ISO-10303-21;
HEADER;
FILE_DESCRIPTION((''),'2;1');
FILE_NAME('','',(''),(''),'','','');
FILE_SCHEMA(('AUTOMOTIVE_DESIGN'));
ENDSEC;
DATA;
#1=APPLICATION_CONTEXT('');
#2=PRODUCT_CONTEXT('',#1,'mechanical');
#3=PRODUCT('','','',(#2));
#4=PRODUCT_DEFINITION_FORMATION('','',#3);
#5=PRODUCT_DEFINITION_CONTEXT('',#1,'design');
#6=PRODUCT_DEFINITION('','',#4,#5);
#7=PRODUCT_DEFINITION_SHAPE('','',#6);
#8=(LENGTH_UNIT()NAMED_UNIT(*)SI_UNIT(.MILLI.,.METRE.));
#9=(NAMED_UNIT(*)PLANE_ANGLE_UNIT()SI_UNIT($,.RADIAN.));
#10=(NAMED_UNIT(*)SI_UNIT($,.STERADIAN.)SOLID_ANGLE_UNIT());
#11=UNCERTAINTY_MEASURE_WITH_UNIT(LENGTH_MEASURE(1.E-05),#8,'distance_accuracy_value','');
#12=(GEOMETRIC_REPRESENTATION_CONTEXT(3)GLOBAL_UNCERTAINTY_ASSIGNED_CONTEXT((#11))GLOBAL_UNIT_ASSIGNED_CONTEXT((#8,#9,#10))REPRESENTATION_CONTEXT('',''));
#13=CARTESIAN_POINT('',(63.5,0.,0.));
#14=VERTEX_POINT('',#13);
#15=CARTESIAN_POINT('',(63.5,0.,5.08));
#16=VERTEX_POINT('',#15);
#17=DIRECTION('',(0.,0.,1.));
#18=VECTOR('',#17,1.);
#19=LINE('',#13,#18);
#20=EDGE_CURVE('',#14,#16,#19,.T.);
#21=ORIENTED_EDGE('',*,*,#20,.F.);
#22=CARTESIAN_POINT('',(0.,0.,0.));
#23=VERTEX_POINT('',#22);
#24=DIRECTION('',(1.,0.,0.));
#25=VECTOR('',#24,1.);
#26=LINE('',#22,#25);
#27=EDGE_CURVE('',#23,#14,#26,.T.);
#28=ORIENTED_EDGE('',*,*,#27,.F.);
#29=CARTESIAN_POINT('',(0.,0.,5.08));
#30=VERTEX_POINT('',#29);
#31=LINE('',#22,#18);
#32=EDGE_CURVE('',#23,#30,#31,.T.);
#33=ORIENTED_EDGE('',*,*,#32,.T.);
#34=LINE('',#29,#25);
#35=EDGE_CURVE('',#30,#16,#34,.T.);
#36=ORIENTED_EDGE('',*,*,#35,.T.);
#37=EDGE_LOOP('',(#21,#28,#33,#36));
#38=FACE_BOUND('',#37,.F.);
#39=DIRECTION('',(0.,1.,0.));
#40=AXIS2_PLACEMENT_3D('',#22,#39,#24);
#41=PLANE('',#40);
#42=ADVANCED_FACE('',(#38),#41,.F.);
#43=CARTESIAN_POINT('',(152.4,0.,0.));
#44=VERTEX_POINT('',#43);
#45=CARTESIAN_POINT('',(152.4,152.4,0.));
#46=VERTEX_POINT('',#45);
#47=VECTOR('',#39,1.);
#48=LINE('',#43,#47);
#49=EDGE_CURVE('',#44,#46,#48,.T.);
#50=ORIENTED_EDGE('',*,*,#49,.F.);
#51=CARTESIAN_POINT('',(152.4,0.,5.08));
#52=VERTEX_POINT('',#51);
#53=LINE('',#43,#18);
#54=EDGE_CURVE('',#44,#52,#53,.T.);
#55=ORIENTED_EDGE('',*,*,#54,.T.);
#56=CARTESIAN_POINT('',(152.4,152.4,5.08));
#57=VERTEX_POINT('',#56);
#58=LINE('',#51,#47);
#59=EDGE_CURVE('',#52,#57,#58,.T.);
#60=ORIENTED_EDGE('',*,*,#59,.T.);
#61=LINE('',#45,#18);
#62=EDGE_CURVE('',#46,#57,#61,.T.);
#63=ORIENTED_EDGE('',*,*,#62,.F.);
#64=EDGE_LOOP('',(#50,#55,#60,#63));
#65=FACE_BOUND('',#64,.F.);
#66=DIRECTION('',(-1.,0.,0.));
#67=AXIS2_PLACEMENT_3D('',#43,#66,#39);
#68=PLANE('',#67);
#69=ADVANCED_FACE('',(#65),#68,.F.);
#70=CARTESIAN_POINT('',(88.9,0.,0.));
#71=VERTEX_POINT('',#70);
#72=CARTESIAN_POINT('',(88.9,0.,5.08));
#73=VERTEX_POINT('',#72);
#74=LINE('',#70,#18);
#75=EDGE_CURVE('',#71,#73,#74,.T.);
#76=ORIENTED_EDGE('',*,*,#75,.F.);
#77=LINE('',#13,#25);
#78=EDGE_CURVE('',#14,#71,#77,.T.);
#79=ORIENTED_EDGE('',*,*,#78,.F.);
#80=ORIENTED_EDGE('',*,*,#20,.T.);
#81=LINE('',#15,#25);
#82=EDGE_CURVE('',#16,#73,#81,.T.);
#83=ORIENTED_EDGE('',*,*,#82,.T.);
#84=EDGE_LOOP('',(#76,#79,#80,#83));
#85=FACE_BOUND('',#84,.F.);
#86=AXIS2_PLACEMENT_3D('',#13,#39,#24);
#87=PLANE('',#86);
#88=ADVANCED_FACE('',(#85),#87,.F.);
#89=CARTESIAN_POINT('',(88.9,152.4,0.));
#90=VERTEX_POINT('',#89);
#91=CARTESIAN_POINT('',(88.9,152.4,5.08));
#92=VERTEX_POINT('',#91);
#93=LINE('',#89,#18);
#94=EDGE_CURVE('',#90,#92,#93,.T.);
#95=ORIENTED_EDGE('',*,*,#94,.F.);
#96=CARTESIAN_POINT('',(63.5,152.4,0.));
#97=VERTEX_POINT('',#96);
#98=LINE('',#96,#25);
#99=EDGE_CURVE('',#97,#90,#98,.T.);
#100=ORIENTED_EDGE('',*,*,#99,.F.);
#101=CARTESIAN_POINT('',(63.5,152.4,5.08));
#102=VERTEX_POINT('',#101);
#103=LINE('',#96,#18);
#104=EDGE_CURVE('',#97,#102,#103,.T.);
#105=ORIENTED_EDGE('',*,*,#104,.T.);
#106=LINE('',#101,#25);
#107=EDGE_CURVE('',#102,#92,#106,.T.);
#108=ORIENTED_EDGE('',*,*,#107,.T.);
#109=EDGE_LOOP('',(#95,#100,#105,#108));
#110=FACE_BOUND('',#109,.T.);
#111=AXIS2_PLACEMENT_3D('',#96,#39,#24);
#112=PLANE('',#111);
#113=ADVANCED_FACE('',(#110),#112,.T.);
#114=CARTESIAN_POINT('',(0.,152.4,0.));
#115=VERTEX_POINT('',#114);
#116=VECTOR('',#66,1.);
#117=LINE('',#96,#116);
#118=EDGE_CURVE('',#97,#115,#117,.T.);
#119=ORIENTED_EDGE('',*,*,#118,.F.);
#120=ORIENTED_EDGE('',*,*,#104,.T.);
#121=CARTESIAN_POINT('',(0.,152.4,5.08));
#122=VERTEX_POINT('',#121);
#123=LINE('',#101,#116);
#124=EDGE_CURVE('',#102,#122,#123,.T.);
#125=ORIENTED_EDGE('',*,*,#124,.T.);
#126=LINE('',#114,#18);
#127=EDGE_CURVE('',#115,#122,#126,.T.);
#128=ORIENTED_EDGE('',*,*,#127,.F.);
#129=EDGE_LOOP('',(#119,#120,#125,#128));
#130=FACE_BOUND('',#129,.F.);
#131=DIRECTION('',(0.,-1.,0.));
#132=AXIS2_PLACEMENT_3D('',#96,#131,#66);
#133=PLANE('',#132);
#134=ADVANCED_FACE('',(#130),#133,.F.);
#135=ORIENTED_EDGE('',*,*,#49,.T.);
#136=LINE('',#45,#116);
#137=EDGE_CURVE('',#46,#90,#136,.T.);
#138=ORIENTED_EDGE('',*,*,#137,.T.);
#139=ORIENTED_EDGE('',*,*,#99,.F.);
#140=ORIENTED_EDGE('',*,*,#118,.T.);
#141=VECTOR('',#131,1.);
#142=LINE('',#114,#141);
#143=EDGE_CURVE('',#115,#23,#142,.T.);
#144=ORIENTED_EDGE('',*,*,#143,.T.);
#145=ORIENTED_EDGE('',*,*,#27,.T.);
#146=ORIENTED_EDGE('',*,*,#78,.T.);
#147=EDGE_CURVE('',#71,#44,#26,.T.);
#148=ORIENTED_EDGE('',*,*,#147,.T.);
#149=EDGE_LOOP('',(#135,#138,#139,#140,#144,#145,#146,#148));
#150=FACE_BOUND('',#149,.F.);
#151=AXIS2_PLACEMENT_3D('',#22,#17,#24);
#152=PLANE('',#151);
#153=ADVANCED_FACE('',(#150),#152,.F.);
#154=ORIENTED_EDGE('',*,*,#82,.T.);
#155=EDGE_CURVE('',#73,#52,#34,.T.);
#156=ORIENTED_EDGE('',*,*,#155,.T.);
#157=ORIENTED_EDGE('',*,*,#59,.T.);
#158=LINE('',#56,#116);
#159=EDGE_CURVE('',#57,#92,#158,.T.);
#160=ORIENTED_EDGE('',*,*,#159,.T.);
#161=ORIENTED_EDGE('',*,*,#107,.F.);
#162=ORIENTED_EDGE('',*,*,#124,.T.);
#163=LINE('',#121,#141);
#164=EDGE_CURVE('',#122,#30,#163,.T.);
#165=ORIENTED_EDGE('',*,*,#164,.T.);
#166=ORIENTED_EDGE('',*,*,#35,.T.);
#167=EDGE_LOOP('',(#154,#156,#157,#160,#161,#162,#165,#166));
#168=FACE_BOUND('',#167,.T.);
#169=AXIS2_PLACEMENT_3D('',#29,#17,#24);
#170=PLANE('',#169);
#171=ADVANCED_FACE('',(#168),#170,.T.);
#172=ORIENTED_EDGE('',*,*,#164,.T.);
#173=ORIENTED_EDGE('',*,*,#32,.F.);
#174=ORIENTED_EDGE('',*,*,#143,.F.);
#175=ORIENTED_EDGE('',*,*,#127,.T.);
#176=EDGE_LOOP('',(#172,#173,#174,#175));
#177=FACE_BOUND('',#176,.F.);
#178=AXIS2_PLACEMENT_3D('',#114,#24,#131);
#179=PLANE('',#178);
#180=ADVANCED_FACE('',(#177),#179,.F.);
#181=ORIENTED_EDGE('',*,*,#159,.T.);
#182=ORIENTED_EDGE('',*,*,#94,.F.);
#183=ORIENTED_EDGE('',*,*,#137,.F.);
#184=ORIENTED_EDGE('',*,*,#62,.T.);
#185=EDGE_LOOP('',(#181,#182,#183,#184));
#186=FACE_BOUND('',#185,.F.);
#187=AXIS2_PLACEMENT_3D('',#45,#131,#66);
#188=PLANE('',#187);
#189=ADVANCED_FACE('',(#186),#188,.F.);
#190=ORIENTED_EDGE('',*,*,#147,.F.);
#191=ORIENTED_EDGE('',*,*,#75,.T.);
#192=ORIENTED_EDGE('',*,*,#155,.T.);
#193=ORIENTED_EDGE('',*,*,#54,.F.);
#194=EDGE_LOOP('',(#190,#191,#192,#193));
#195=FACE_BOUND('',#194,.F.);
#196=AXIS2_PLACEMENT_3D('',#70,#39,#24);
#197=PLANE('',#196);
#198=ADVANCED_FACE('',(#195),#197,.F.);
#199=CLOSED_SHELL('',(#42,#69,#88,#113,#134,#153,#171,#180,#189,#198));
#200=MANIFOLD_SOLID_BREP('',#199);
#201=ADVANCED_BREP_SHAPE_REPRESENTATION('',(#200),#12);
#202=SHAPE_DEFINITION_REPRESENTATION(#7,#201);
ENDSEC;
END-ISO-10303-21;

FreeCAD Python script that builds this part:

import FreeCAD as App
import Part
import Sketcher

V = App.Vector
Q = App.Units.Quantity


def add_polygon(sketch, points):
    """Adds a closed chain of lines whose ends are joined by coincident constraints."""
    first, n = sketch.GeometryCount, len(points)
    for a, b in zip(points, points[1:] + points[:1]):
        sketch.addGeometry(Part.LineSegment(App.Vector(*a, 0), App.Vector(*b, 0)), False)
    for i in range(n):
        sketch.addConstraint(Sketcher.Constraint("Coincident", first + i, 2, first + (i + 1) % n, 1))

doc = App.newDocument("Part")
body = doc.addObject("PartDesign::Body", "Body")

# Sketch on XY plane
sketch1 = body.newObject("Sketcher::SketchObject", "Sketch")
sketch1.AttachmentSupport = (doc.getObject("XY_Plane"), [""])
sketch1.MapMode = "FlatFace"
add_polygon(sketch1, [(0, 152), (0, 0), (152, 0), (152, 152)])  # lines 0-3
sketch1.addConstraint(Sketcher.Constraint("Vertical", 0))
sketch1.addConstraint(Sketcher.Constraint("Horizontal", 1))
sketch1.addConstraint(Sketcher.Constraint("Vertical", 2))
sketch1.addConstraint(Sketcher.Constraint("Horizontal", 3))
sketch1.addConstraint(Sketcher.Constraint("Coincident", 0, 2, -1, 1))
sketch1.addConstraint(Sketcher.Constraint("Equal", 3, 0))
sketch1.addConstraint(Sketcher.Constraint("DistanceX", 1, 1, 1, 2, Q("6 in")))
pad1 = body.newObject("PartDesign::Pad", "Pad")
pad1.Profile = sketch1
pad1.Length = Q("0.2 in")

doc.recompute()
